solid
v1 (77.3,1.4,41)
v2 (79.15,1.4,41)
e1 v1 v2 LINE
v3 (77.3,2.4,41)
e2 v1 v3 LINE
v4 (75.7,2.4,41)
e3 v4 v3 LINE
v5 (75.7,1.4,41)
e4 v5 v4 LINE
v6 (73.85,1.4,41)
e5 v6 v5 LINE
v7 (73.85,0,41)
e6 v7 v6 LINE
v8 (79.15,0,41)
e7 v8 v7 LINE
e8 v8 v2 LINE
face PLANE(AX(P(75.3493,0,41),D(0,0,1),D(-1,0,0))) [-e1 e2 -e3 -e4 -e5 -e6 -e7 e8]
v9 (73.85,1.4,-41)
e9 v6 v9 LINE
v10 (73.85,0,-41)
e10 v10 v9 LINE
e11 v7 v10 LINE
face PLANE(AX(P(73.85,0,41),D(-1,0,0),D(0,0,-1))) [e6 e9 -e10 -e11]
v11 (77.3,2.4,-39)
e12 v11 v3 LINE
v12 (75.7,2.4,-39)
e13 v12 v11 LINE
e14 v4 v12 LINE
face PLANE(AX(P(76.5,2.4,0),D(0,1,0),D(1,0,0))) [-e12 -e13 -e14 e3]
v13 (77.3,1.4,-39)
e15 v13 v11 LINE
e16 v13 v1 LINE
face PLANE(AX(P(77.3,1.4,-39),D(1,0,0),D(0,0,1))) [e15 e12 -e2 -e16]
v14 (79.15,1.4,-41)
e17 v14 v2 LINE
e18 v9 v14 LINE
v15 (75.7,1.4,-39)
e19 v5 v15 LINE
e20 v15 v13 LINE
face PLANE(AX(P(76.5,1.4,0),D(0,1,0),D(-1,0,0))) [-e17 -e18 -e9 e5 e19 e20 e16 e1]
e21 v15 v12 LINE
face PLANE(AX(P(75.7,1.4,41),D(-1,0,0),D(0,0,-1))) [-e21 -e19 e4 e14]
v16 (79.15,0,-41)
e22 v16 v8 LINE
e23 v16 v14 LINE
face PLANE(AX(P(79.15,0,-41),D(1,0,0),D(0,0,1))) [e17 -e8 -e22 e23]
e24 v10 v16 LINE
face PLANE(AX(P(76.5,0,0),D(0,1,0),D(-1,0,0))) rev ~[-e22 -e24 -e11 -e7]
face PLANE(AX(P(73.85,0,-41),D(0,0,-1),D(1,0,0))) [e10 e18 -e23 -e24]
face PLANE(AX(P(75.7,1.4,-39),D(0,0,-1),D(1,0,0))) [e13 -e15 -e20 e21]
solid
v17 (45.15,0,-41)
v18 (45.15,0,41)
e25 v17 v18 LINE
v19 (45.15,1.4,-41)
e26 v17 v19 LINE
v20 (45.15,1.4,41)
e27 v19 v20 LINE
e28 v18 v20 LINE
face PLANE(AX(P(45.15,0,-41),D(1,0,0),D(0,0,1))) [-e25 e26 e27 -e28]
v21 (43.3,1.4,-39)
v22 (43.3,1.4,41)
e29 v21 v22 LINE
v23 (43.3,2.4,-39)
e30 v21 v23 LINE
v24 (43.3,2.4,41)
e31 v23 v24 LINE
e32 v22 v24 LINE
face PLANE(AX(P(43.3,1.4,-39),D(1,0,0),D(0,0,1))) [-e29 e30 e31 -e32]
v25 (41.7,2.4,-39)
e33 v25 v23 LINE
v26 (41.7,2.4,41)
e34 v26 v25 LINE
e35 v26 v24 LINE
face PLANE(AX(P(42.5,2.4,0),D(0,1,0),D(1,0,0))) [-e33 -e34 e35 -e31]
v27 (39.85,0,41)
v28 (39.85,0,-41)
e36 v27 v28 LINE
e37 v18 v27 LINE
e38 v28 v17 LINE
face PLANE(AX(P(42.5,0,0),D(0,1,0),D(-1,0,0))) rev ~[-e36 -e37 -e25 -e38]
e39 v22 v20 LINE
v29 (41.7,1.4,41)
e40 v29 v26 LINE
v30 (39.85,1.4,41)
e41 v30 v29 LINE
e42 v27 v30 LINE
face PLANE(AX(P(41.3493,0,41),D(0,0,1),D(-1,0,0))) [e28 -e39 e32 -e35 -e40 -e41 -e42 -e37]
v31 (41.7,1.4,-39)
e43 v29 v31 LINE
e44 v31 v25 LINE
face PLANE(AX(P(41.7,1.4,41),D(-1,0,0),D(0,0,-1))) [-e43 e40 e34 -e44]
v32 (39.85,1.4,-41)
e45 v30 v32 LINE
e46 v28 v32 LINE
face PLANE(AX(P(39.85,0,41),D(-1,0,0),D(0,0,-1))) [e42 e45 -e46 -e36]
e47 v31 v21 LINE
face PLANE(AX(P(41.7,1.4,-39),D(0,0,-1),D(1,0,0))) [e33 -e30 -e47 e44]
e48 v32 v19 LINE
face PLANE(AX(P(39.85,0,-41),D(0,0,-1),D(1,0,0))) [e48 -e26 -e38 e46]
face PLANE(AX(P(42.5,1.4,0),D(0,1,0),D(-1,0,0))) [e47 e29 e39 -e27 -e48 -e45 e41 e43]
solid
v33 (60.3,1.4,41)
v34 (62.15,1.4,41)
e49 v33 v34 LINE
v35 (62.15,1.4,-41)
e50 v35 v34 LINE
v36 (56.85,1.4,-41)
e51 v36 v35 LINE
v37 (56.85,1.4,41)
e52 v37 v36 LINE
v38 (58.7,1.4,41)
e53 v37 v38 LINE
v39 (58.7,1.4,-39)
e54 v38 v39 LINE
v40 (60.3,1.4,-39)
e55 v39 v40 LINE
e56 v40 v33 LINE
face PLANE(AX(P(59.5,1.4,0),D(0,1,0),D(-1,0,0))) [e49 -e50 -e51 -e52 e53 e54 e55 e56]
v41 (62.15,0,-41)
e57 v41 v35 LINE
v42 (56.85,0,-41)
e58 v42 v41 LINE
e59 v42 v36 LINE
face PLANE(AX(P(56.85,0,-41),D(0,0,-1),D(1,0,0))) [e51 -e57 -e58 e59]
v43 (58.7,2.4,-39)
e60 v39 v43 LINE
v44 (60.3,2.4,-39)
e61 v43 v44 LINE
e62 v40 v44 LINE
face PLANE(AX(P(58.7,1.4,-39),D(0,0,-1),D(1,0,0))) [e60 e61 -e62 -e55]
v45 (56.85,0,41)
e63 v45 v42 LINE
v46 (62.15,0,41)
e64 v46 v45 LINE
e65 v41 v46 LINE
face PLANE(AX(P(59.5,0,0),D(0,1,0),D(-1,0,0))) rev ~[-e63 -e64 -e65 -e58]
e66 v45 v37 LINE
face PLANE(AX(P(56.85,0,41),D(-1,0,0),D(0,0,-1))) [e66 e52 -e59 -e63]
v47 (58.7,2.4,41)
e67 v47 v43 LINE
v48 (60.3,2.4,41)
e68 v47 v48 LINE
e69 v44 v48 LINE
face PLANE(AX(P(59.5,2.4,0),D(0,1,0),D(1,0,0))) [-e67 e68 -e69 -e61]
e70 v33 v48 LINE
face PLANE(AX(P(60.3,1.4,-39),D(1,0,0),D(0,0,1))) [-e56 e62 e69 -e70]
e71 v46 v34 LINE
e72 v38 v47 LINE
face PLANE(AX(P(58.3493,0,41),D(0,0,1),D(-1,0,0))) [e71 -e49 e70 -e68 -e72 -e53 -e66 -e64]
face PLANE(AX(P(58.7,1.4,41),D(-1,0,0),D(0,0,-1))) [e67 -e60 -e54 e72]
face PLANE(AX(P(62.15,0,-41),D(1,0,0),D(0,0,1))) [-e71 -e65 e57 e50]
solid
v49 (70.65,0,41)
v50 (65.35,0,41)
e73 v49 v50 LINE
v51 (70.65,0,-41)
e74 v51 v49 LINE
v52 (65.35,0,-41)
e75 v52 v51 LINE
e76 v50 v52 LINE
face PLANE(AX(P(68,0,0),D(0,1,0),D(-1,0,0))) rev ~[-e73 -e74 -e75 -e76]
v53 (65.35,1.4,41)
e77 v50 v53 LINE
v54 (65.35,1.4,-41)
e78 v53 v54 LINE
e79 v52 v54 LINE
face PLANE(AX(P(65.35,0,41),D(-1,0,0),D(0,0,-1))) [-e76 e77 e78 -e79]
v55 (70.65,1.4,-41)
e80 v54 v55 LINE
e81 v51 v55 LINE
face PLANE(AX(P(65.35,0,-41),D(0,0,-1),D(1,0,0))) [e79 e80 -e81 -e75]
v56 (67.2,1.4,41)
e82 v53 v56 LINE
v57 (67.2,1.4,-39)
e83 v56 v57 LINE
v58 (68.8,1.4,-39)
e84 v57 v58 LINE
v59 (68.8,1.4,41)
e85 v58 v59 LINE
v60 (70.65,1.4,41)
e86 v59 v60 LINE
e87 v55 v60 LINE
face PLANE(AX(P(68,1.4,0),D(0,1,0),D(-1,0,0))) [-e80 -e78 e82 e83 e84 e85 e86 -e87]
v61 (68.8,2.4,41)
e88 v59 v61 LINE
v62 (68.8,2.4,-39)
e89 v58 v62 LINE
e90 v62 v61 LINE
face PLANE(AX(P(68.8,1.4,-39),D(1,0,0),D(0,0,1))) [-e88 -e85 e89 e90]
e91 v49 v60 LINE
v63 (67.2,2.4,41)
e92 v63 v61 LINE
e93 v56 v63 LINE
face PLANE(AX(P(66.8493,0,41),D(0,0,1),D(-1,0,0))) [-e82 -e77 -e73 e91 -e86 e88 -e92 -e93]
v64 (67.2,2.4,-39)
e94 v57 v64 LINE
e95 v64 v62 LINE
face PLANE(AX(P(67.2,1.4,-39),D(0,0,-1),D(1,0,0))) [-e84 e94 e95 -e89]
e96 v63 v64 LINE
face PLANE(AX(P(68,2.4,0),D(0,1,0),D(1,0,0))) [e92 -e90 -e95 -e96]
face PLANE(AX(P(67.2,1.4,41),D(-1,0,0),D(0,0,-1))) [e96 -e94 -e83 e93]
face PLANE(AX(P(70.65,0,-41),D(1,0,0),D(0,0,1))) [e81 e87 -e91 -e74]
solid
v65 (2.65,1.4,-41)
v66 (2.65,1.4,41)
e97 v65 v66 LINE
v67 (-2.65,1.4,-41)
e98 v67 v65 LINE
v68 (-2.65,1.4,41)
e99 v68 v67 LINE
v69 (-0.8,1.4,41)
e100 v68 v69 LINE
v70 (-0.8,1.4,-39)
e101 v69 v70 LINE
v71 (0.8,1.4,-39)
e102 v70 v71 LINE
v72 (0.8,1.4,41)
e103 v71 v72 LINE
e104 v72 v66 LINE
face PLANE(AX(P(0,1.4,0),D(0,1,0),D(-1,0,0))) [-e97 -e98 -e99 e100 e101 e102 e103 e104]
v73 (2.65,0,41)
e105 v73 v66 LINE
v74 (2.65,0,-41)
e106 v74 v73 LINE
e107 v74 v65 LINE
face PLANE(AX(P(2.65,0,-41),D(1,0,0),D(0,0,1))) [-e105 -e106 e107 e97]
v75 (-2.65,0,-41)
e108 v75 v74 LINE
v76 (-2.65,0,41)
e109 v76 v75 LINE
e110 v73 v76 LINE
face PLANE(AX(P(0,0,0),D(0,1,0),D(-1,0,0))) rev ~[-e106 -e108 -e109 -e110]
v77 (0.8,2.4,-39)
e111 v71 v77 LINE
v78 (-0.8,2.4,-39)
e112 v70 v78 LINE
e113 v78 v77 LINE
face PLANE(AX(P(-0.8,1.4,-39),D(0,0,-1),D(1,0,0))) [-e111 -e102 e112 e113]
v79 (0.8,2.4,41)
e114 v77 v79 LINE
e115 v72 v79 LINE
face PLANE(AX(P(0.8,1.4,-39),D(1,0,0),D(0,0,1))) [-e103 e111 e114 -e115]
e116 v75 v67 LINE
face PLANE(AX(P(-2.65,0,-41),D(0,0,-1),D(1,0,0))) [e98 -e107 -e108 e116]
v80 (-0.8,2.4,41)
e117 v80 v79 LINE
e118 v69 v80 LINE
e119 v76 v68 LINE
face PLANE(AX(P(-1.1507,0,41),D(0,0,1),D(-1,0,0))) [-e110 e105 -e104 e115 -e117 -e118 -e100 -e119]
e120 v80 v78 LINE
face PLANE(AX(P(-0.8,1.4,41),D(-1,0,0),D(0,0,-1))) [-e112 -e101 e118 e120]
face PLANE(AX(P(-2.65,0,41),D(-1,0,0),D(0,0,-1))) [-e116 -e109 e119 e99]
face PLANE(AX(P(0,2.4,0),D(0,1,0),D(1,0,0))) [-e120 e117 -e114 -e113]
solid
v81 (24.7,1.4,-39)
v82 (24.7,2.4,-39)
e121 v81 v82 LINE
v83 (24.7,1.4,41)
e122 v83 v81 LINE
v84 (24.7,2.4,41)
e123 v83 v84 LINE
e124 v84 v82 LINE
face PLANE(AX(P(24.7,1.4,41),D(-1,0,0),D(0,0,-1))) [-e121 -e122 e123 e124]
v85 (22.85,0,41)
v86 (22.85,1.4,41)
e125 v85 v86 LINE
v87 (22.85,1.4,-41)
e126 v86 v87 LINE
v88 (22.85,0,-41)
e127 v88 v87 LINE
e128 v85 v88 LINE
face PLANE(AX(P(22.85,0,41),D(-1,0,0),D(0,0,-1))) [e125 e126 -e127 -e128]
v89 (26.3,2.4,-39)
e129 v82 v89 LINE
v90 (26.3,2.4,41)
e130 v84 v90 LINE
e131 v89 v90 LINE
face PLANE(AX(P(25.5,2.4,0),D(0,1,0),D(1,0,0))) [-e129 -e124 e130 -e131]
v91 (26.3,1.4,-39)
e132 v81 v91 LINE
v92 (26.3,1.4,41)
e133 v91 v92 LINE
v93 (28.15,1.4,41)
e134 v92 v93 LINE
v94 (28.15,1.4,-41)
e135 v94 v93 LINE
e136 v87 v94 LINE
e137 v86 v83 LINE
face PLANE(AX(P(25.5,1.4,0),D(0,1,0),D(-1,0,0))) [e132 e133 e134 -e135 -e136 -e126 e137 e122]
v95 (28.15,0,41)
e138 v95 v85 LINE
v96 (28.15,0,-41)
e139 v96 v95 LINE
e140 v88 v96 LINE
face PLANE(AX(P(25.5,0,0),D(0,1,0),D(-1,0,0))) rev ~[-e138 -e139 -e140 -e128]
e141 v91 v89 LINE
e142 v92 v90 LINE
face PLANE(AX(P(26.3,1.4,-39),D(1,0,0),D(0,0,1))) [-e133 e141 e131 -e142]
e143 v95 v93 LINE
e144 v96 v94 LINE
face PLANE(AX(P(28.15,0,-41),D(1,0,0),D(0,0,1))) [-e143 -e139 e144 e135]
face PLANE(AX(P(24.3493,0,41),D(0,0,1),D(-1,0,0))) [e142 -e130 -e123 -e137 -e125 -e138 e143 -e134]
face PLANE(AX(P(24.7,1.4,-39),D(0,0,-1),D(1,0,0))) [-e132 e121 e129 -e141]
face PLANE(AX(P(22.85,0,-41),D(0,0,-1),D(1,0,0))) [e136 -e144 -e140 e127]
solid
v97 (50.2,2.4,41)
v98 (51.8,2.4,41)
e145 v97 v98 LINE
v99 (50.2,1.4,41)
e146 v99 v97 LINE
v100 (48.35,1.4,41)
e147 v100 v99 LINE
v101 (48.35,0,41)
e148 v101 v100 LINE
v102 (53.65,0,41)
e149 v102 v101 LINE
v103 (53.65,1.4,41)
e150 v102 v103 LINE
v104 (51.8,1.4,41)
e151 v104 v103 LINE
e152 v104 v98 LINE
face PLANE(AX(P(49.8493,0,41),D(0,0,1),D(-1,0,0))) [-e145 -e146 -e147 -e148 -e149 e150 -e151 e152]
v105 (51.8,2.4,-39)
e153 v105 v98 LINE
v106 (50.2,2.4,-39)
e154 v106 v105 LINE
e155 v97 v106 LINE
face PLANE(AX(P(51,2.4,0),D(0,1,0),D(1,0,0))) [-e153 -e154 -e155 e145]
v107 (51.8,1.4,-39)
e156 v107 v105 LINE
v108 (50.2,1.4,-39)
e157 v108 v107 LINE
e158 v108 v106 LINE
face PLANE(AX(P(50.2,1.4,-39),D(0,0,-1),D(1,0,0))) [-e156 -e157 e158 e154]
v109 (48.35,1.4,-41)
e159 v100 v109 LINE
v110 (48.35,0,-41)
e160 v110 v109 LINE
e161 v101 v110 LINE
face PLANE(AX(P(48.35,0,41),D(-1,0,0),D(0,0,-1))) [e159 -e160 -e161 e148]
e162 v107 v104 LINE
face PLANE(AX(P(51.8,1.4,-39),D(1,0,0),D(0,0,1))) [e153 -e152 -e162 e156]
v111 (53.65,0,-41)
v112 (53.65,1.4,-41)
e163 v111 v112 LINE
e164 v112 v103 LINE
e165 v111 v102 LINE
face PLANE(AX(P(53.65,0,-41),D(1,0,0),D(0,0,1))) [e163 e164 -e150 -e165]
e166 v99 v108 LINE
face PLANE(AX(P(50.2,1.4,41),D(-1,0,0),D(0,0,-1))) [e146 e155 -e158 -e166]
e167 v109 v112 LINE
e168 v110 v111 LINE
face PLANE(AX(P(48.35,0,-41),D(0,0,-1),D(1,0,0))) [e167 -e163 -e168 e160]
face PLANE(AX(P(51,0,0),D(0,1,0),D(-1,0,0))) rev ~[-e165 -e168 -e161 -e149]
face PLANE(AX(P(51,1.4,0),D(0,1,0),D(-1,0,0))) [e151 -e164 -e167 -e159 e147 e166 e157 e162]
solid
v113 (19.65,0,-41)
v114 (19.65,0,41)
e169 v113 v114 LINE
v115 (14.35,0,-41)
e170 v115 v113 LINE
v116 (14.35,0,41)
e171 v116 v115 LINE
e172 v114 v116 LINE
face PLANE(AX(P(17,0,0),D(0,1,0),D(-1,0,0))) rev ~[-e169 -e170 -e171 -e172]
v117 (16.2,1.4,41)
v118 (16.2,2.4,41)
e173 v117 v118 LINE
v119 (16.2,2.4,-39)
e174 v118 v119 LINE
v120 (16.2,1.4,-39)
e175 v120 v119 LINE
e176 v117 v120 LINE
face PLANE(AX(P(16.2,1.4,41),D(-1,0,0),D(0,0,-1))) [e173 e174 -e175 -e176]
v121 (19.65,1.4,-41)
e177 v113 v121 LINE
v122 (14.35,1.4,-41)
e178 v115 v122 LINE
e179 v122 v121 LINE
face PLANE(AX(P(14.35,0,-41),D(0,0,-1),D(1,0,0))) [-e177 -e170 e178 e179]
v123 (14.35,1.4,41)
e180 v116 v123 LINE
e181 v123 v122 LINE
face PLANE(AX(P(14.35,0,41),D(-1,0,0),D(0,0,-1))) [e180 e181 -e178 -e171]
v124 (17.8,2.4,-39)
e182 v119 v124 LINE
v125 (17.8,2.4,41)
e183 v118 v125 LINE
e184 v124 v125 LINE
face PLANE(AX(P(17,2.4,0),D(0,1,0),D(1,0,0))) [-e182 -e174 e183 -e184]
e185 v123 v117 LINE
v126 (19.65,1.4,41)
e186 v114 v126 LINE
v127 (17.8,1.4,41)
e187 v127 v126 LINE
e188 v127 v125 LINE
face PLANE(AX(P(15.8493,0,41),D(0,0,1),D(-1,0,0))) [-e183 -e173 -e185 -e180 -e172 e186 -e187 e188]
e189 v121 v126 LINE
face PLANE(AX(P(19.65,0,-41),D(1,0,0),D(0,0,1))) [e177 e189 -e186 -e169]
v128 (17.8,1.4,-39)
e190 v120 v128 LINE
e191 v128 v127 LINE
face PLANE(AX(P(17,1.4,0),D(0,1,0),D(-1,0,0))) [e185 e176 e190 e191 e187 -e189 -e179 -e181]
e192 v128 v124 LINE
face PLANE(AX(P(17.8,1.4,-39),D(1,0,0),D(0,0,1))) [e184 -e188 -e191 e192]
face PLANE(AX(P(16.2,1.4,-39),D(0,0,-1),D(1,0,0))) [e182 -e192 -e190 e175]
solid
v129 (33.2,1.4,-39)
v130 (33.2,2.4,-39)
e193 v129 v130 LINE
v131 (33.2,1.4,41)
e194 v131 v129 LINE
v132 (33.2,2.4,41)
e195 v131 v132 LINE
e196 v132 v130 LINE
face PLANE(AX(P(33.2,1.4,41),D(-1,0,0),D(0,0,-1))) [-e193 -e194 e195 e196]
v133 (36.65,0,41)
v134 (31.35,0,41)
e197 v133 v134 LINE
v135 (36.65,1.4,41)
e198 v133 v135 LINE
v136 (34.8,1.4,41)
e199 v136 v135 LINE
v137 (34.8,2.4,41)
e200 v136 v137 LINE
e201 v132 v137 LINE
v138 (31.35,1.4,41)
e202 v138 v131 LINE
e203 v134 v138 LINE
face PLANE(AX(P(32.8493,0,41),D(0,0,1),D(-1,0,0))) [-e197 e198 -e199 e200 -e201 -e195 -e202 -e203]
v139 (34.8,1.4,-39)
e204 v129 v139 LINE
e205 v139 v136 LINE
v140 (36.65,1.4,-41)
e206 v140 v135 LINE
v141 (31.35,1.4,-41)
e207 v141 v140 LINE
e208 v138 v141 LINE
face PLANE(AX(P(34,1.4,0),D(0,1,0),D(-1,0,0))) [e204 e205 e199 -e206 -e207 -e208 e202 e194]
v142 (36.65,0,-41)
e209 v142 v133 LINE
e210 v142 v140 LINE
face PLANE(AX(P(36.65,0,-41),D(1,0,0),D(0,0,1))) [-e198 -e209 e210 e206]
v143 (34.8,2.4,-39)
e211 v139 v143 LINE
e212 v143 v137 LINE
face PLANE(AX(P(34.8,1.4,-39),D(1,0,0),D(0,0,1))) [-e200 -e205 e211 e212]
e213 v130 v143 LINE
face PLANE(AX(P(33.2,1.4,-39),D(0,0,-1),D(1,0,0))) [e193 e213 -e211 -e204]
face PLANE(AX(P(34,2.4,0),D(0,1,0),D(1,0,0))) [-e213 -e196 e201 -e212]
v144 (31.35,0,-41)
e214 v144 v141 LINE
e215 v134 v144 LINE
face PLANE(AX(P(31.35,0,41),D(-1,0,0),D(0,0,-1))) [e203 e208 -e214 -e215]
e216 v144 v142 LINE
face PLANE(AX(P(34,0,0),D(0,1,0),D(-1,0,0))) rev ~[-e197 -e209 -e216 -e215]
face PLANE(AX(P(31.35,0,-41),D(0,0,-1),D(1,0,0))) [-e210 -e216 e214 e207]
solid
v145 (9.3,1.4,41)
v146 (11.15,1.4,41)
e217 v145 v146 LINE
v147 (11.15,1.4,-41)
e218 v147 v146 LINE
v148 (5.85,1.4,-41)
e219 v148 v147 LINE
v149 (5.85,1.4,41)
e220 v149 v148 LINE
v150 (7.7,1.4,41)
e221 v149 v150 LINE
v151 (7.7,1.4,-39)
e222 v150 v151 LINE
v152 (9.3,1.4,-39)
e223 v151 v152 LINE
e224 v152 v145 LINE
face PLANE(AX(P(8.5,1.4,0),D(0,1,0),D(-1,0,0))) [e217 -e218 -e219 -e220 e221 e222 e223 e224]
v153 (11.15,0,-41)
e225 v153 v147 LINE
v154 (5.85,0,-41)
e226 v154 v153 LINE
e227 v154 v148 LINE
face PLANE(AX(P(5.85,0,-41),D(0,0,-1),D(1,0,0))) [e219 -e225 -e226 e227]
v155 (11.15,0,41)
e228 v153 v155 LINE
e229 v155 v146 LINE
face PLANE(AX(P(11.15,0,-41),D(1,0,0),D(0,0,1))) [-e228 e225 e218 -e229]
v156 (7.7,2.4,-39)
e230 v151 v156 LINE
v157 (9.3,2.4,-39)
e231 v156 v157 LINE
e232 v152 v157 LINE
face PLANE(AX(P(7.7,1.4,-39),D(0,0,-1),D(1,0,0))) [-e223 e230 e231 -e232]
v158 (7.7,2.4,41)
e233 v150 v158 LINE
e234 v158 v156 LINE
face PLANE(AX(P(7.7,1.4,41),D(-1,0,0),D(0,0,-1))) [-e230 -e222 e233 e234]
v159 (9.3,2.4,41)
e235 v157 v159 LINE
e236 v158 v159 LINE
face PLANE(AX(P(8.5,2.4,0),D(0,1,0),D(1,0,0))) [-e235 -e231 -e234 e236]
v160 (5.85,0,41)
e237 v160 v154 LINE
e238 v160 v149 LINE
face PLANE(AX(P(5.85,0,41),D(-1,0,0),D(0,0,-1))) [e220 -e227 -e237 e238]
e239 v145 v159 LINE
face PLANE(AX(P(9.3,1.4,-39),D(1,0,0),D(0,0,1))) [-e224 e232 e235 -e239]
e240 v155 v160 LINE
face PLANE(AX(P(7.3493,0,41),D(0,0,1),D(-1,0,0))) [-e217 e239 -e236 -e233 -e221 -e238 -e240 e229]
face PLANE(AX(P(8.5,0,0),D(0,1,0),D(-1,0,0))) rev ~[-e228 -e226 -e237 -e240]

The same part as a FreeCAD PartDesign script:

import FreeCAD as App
import Part
import Sketcher
from FreeCAD import Vector

doc = App.newDocument("Part")
body = doc.addObject("PartDesign::Body", "Body")
body.AllowCompound = True

# Sketch on XZ plane
sketch1 = body.newObject("Sketcher::SketchObject", "Sketch")
sketch1.AttachmentSupport = (doc.getObject("XZ_Plane"), [""])
sketch1.MapMode = "FlatFace"
sketch1.addGeometry([
    Part.LineSegment(Vector(3, -41, 0), Vector(-3, -41, 0)),
    Part.LineSegment(Vector(-3, -41, 0), Vector(-3, 41, 0)),
    Part.LineSegment(Vector(-3, 41, 0), Vector(3, 41, 0)),
    Part.LineSegment(Vector(3, 41, 0), Vector(3, -41, 0)),
], False)
sketch1.addConstraint([
    Sketcher.Constraint("Coincident", 0, 2, 1, 1),
    Sketcher.Constraint("Coincident", 1, 2, 2, 1),
    Sketcher.Constraint("Coincident", 2, 2, 3, 1),
    Sketcher.Constraint("Coincident", 3, 2, 0, 1),
    Sketcher.Constraint("Horizontal", 0),
    Sketcher.Constraint("Vertical", 1),
    Sketcher.Constraint("Horizontal", 2),
    Sketcher.Constraint("Vertical", 3),
    Sketcher.Constraint("Symmetric", 0, 2, 2, 2, -1, 1),
    Sketcher.Constraint("DistanceY", 1, 1, 1, 2, 82.0),
    Sketcher.Constraint("DistanceX", 0, 2, 0, 1, 5.3),
])
pad1 = body.newObject("PartDesign::Pad", "Pad")
pad1.Profile = sketch1
pad1.Length = 1.4
pad1.Reversed = True

# Sketch on XZ plane
sketch2 = body.newObject("Sketcher::SketchObject", "Sketch001")
sketch2.AttachmentSupport = (doc.getObject("XZ_Plane"), [""])
sketch2.MapMode = "FlatFace"
sketch2.AttachmentOffset = App.Placement(Vector(0, 0, -1.4), App.Rotation())
sketch2.addGeometry([
    Part.LineSegment(Vector(-0.8, -39, 0), Vector(-0.8, 41, 0)),
    Part.LineSegment(Vector(-0.8, 41, 0), Vector(0.8, 41, 0)),
    Part.LineSegment(Vector(0.8, 41, 0), Vector(0.8, -39, 0)),
    Part.LineSegment(Vector(0.8, -39, 0), Vector(-0.8, -39, 0)),
], False)
sketch2.addConstraint([
    Sketcher.Constraint("Coincident", 0, 2, 1, 1),
    Sketcher.Constraint("Coincident", 1, 2, 2, 1),
    Sketcher.Constraint("Coincident", 2, 2, 3, 1),
    Sketcher.Constraint("Coincident", 3, 2, 0, 1),
    Sketcher.Constraint("Vertical", 0),
    Sketcher.Constraint("Horizontal", 1),
    Sketcher.Constraint("Vertical", 2),
    Sketcher.Constraint("Horizontal", 3),
    Sketcher.Constraint("DistanceY", 0, 1, 0, 2, 80.0),
    Sketcher.Constraint("DistanceX", 1, 1, 1, 2, 1.6),
    Sketcher.Constraint("DistanceY", -1, 1, 0, 2, 41.0),
    Sketcher.Constraint("DistanceX", 0, 2, -1, 1, 0.8),
])
pad2 = body.newObject("PartDesign::Pad", "Pad001")
pad2.Profile = sketch2
pad2.Length = 1
pad2.Reversed = True
doc.recompute()

linearpattern = body.newObject("PartDesign::LinearPattern", "LinearPattern")
linearpattern.Originals = [pad1, pad2]
linearpattern.Direction = (doc.getObject("X_Axis"), [""])
linearpattern.Mode = "offset"
linearpattern.Offset = 8.5
linearpattern.Occurrences = 10
body.Tip = linearpattern

doc.recompute()
